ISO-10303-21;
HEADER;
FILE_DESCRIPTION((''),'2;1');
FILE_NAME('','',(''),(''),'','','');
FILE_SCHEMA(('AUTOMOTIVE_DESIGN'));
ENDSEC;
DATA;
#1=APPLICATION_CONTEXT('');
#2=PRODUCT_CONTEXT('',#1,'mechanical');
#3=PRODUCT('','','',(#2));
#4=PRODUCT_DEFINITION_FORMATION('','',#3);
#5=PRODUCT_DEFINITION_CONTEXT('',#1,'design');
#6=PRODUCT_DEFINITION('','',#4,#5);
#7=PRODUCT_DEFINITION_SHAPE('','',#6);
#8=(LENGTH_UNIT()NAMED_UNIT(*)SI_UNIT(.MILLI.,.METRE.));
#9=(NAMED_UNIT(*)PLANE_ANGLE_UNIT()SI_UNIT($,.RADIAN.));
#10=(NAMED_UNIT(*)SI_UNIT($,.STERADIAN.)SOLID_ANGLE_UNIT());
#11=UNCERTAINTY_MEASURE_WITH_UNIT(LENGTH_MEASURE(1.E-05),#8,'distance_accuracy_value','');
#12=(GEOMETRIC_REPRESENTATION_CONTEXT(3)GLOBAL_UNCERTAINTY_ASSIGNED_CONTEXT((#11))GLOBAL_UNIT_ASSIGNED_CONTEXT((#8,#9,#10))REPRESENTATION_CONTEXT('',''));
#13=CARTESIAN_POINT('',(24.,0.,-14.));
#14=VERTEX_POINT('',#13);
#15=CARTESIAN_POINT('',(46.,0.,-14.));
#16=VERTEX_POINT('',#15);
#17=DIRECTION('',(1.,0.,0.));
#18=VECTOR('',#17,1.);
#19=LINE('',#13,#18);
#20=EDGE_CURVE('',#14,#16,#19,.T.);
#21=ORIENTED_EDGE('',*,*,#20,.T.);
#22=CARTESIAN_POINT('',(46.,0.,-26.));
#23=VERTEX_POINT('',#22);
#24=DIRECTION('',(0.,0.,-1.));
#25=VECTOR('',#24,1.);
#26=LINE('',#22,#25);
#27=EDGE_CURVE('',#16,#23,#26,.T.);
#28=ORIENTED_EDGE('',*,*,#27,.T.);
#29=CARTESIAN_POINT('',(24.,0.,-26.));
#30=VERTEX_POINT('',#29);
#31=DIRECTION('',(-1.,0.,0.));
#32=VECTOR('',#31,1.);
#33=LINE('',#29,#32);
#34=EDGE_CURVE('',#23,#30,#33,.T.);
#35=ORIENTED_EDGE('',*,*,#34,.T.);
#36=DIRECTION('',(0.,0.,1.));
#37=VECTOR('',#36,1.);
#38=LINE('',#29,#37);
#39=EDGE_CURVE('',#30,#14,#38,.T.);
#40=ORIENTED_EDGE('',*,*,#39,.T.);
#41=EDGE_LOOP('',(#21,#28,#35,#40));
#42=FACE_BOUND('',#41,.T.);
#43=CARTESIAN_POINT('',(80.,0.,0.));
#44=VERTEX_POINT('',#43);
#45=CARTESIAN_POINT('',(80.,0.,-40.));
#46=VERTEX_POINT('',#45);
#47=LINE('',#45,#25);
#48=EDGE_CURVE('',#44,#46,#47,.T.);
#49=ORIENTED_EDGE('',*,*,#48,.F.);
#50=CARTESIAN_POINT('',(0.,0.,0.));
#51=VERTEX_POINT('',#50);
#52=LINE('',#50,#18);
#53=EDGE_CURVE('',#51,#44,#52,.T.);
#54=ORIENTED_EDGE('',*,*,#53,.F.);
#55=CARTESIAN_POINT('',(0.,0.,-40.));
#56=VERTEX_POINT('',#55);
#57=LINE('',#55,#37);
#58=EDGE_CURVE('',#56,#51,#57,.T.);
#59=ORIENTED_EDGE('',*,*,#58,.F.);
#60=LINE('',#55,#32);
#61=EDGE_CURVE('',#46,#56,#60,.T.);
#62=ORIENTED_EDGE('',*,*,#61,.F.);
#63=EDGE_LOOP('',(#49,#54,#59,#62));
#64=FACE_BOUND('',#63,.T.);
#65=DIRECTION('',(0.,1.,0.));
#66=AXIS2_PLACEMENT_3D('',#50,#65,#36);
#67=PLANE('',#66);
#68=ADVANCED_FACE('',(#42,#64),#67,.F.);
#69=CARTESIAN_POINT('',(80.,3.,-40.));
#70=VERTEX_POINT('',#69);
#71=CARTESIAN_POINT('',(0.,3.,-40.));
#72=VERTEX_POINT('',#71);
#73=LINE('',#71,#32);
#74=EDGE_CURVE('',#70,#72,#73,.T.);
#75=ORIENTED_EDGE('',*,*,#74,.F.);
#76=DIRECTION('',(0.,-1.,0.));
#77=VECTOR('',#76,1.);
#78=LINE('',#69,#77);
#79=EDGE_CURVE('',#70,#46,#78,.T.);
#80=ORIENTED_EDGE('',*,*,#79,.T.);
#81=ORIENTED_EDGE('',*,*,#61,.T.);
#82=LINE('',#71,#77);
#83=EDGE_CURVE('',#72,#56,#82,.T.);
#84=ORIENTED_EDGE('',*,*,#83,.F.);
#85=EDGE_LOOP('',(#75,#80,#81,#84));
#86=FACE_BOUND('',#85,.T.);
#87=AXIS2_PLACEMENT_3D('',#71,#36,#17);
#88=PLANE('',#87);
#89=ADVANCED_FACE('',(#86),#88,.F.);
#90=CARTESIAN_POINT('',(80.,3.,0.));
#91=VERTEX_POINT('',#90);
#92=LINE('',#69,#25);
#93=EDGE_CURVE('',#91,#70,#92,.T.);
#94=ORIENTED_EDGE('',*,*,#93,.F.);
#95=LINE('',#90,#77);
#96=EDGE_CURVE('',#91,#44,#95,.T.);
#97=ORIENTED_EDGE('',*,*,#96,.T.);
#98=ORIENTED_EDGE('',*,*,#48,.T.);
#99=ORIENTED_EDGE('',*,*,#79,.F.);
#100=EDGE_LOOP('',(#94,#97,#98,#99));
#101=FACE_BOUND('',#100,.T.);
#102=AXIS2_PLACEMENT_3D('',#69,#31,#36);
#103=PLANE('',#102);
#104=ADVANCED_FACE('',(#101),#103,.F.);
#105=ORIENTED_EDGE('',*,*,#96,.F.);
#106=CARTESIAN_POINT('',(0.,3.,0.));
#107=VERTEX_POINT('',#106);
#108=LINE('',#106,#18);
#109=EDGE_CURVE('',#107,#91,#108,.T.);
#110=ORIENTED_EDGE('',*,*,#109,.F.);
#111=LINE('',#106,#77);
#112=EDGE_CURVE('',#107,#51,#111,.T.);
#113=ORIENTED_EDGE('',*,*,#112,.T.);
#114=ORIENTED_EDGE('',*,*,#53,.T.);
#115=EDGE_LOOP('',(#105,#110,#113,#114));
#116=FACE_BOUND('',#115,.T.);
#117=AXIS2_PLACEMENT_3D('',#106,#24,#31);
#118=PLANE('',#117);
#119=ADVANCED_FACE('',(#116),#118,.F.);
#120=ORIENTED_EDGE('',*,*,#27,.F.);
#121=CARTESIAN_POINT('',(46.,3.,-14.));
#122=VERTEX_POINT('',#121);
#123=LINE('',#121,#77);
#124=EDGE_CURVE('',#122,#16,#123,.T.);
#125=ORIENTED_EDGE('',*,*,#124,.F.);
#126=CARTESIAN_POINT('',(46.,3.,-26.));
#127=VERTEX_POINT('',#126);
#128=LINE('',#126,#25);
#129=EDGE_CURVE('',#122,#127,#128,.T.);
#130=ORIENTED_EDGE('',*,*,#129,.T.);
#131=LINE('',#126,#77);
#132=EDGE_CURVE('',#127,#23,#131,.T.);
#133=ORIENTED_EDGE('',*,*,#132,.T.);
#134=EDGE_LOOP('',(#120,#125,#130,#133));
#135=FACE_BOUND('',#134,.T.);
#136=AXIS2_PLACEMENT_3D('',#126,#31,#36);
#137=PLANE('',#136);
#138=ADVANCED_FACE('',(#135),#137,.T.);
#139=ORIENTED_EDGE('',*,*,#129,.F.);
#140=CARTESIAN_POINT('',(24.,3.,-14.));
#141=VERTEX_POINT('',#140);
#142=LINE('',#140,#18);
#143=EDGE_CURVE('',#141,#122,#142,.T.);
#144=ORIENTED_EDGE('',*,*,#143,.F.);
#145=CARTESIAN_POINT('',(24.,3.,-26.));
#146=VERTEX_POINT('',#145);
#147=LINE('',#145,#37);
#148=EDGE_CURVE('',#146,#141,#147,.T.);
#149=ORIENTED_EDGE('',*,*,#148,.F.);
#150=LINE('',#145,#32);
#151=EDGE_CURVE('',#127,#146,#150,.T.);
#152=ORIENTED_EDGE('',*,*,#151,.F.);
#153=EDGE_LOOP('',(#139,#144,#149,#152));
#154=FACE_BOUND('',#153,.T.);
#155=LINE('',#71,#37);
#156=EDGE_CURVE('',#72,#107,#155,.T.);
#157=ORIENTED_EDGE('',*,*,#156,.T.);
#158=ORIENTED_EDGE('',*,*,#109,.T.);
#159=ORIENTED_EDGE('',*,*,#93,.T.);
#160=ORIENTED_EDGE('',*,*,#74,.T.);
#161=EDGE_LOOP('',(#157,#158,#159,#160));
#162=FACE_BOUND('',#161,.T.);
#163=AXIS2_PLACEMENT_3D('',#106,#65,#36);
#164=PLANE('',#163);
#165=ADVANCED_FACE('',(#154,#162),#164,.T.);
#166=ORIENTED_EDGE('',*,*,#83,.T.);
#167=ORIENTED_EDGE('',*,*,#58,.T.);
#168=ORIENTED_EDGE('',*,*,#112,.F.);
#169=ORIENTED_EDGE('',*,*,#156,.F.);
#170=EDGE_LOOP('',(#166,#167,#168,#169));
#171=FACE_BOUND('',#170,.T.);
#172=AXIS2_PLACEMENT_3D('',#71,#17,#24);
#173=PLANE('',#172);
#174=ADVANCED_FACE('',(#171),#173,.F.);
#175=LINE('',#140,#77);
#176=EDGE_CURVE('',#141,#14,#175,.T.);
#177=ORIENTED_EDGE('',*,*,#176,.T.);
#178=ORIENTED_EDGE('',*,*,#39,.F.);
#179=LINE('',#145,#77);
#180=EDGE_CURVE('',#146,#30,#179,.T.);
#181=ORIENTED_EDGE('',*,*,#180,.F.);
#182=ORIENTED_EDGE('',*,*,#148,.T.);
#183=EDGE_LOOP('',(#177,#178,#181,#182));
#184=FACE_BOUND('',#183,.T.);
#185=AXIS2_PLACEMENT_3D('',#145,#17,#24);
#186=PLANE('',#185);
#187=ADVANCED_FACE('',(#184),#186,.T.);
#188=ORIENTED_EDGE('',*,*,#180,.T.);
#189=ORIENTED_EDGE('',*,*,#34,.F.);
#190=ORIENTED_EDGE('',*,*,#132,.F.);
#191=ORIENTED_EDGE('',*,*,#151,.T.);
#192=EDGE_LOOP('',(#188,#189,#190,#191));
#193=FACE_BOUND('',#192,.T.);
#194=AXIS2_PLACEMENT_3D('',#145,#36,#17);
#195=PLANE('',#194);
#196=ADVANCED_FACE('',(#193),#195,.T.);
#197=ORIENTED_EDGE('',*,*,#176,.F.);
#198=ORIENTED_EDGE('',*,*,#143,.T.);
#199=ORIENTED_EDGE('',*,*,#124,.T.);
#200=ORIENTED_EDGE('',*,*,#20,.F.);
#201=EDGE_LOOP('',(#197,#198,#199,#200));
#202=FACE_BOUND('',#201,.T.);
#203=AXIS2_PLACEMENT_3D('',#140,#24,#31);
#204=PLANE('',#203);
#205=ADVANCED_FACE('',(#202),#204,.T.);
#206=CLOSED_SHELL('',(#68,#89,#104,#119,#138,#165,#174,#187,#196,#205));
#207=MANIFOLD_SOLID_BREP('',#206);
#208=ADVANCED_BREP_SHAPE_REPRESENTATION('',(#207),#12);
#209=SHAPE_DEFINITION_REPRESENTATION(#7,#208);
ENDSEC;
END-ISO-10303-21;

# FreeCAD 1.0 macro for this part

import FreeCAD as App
import Part
import Sketcher

V = App.Vector
Q = App.Units.Quantity

doc = App.newDocument("Part")
body = doc.addObject("PartDesign::Body", "Body")

# Sketch on XZ plane
sketch1 = body.newObject("Sketcher::SketchObject", "Sketch")
sketch1.AttachmentSupport = (doc.getObject("XZ_Plane"), [""])
sketch1.MapMode = "FlatFace"
sketch1.addGeometry([
    Part.LineSegment(V(0, -40, 0), V(0, 0, 0)),  # 0
    Part.LineSegment(V(0, 0, 0), V(80, 0, 0)),  # 1
    Part.LineSegment(V(80, 0, 0), V(80, -40, 0)),  # 2
    Part.LineSegment(V(80, -40, 0), V(0, -40, 0)),  # 3
    Part.LineSegment(V(46, -14, 0), V(24, -14, 0)),  # 4
    Part.LineSegment(V(24, -14, 0), V(24, -26, 0)),  # 5
    Part.LineSegment(V(24, -26, 0), V(46, -26, 0)),  # 6
    Part.LineSegment(V(46, -26, 0), V(46, -14, 0)),  # 7
], False)
sketch1.addConstraint([
    Sketcher.Constraint("Coincident", 0, 2, 1, 1),
    Sketcher.Constraint("Coincident", 1, 2, 2, 1),
    Sketcher.Constraint("Coincident", 2, 2, 3, 1),
    Sketcher.Constraint("Coincident", 3, 2, 0, 1),
    Sketcher.Constraint("Coincident", 4, 2, 5, 1),
    Sketcher.Constraint("Coincident", 5, 2, 6, 1),
    Sketcher.Constraint("Coincident", 6, 2, 7, 1),
    Sketcher.Constraint("Coincident", 7, 2, 4, 1),
    Sketcher.Constraint("Vertical", 0),
    Sketcher.Constraint("Horizontal", 1),
    Sketcher.Constraint("Vertical", 2),
    Sketcher.Constraint("Horizontal", 3),
    Sketcher.Constraint("Horizontal", 4),
    Sketcher.Constraint("Vertical", 5),
    Sketcher.Constraint("Horizontal", 6),
    Sketcher.Constraint("Vertical", 7),
    Sketcher.Constraint("Coincident", 0, 2, -1, 1),
    Sketcher.Constraint("DistanceX", 1, 1, 1, 2, Q("80 mm")),
    Sketcher.Constraint("DistanceX", 4, 2, 4, 1, Q("22 mm")),
    Sketcher.Constraint("DistanceY", 0, 1, 0, 2, Q("40 mm")),
    Sketcher.Constraint("DistanceY", 5, 2, 5, 1, Q("12 mm")),
    Sketcher.Constraint("DistanceX", -1, 1, 4, 2, Q("24 mm")),
    Sketcher.Constraint("DistanceY", 4, 2, -1, 1, Q("14 mm")),
])
pad1 = body.newObject("PartDesign::Pad", "Pad")
pad1.Profile = sketch1
pad1.Length = 3
pad1.Reversed = True

doc.recompute()
